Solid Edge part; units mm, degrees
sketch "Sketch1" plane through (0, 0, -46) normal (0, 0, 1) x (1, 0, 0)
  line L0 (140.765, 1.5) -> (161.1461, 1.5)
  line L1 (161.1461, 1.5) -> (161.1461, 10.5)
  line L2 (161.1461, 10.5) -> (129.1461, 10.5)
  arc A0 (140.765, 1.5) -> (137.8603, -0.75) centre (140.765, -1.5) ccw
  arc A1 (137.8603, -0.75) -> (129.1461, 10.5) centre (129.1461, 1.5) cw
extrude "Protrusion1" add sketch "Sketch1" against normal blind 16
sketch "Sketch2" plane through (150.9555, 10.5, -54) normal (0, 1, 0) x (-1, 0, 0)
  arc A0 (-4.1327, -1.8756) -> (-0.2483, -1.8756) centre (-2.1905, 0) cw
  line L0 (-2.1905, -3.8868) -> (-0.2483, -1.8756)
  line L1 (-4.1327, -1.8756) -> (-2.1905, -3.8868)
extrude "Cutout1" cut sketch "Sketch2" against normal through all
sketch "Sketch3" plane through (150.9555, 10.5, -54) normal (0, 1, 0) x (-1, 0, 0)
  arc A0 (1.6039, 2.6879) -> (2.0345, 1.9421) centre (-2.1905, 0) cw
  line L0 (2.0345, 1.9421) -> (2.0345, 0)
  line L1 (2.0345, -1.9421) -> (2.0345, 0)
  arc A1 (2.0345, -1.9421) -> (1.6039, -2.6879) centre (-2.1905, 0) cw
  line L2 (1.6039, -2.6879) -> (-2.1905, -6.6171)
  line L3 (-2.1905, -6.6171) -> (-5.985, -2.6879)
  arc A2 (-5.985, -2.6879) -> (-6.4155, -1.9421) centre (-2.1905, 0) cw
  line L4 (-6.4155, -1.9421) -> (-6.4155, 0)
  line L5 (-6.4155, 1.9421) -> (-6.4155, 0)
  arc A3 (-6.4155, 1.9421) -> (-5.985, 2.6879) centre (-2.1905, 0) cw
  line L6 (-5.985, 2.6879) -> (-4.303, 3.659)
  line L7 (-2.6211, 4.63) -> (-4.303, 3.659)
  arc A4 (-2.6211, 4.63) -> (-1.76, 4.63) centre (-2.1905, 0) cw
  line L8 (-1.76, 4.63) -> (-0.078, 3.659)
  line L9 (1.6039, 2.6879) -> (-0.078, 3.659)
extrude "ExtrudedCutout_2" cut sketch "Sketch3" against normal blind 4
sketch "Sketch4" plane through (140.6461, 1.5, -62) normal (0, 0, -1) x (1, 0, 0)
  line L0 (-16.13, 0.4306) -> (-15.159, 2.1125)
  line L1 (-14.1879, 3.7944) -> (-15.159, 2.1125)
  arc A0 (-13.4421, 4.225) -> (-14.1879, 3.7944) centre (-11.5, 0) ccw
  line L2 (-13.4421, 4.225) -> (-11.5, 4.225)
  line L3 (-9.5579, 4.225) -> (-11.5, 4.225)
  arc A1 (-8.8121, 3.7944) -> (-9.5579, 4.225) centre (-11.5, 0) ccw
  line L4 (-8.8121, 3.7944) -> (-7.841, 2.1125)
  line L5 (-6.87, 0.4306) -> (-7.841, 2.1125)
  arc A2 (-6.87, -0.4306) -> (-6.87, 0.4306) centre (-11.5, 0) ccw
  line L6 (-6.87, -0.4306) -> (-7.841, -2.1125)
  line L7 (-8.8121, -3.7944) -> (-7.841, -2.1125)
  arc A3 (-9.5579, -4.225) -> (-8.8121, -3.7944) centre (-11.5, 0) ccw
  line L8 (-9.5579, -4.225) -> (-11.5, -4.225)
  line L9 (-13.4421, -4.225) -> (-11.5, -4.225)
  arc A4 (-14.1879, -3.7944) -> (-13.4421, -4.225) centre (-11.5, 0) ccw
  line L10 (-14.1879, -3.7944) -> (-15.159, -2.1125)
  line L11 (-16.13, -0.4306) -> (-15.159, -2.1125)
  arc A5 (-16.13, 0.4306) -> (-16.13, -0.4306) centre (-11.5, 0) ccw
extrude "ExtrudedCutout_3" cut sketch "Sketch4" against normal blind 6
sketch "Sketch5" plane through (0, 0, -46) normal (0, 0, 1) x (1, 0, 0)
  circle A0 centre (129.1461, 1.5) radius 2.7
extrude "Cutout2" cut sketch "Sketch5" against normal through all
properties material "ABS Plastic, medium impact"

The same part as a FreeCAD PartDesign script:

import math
import FreeCAD as App
import Part
import Sketcher
Q = App.Units.Quantity

doc = App.newDocument("Part")
body = doc.addObject("PartDesign::Body", "Body")

sketch1 = body.newObject("Sketcher::SketchObject", "Sketch")
sketch1.AttachmentSupport = (doc.getObject("XY_Plane"), [""])
sketch1.MapMode = "FlatFace"
sketch1.AttachmentOffset = App.Placement(App.Vector(0, 0, -46), App.Rotation())
sketch1.addGeometry(Part.ArcOfCircle(Part.Circle(App.Vector(140.765, -1.5, 0), App.Vector(0, 0, 1), 3), math.radians(90), math.radians(165.522309)), False)
sketch1.addGeometry(Part.LineSegment(App.Vector(140.765, 1.5, 0), App.Vector(161.1461, 1.5, 0)), False)
sketch1.addGeometry(Part.LineSegment(App.Vector(161.1461, 1.5, 0), App.Vector(161.1461, 10.5, 0)), False)
sketch1.addGeometry(Part.LineSegment(App.Vector(161.1461, 10.5, 0), App.Vector(129.1461, 10.5, 0)), False)
sketch1.addGeometry(Part.ArcOfCircle(Part.Circle(App.Vector(129.1461, 1.5, 0), App.Vector(0, 0, 1), 8.999988), math.radians(90), math.radians(345.522468)), False)
sketch1.addConstraint(Sketcher.Constraint("Tangent", 0, 1, 1, 1))
sketch1.addConstraint(Sketcher.Constraint("Coincident", 1, 2, 2, 1))
sketch1.addConstraint(Sketcher.Constraint("Coincident", 2, 2, 3, 1))
sketch1.addConstraint(Sketcher.Constraint("Tangent", 3, 2, 4, 1))
sketch1.addConstraint(Sketcher.Constraint("Tangent", 4, 2, 0, 2))
sketch1.addConstraint(Sketcher.Constraint("Horizontal", 1))
sketch1.addConstraint(Sketcher.Constraint("Vertical", 2))
sketch1.addConstraint(Sketcher.Constraint("Horizontal", 3))
sketch1.addConstraint(Sketcher.Constraint("Horizontal", 4, 3, 0, 1))
sketch1.addConstraint(Sketcher.Constraint("Radius", 0, 3.0))
sketch1.addConstraint(Sketcher.Constraint("Radius", 4, 9.0))
sketch1.addConstraint(Sketcher.Constraint("DistanceX", 3, 2, 3, 1, 32.0))
sketch1.addConstraint(Sketcher.Constraint("DistanceY", 0, 3, -1, 1, 1.5))
sketch1.addConstraint(Sketcher.Constraint("DistanceX", -1, 1, 0, 3, 140.765))
pad1 = body.newObject("PartDesign::Pad", "Pad")
pad1.Profile = sketch1
pad1.Length = 16
pad1.Reversed = True

sketch2 = body.newObject("Sketcher::SketchObject", "Sketch001")
sketch2.AttachmentSupport = (doc.getObject("XZ_Plane"), [""])
sketch2.MapMode = "FlatFace"
sketch2.AttachmentOffset = App.Placement(App.Vector(0, 0, -10.5), App.Rotation())
sketch2.addGeometry(Part.ArcOfCircle(Part.Circle(App.Vector(153.146, -54, 0), App.Vector(0, 0, 1), 2.700003), math.radians(-44.000599), math.radians(224.000599)), False)
sketch2.addGeometry(Part.LineSegment(App.Vector(155.0882, -55.8756, 0), App.Vector(153.146, -57.8868, 0)), False)
sketch2.addGeometry(Part.LineSegment(App.Vector(153.146, -57.8868, 0), App.Vector(151.2038, -55.8756, 0)), False)
sketch2.addConstraint(Sketcher.Constraint("Tangent", 0, 1, 1, 1))
sketch2.addConstraint(Sketcher.Constraint("Coincident", 1, 2, 2, 1))
sketch2.addConstraint(Sketcher.Constraint("Tangent", 2, 2, 0, 2))
sketch2.addConstraint(Sketcher.Constraint("Horizontal", 0, 1, 2, 2))
sketch2.addConstraint(Sketcher.Constraint("Radius", 0, 2.7))
sketch2.addConstraint(Sketcher.Constraint("Angle", 1, Q("-134 deg")))
sketch2.addConstraint(Sketcher.Constraint("DistanceY", 0, 3, -1, 1, 54.0))
sketch2.addConstraint(Sketcher.Constraint("DistanceX", -1, 1, 0, 3, 153.146))
pocket1 = body.newObject("PartDesign::Pocket", "Pocket")
pocket1.Profile = sketch2
pocket1.Type = "ThroughAll"
pocket1.Reversed = True

sketch3 = body.newObject("Sketcher::SketchObject", "Sketch002")
sketch3.AttachmentSupport = (doc.getObject("XZ_Plane"), [""])
sketch3.MapMode = "FlatFace"
sketch3.AttachmentOffset = App.Placement(App.Vector(0, 0, -10.5), App.Rotation())
sketch3.addGeometry(Part.ArcOfCircle(Part.Circle(App.Vector(153.147051, -54.000674, 0), App.Vector(0, 0, 1), 4.651223), math.radians(144.687488), math.radians(155.311109)), False)
sketch3.addGeometry(Part.LineSegment(App.Vector(149.3516, -51.3121, 0), App.Vector(151.0335, -50.341, 0)), False)
sketch3.addGeometry(Part.LineSegment(App.Vector(151.0335, -50.341, 0), App.Vector(152.7155, -49.37, 0)), False)
sketch3.addGeometry(Part.ArcOfCircle(Part.Circle(App.Vector(153.14605, -53.998923, 0), App.Vector(0, 0, 1), 4.648903), math.radians(84.686037), math.radians(95.313963)), False)
sketch3.addGeometry(Part.LineSegment(App.Vector(153.5766, -49.37, 0), App.Vector(155.2585, -50.341, 0)), False)
sketch3.addGeometry(Part.LineSegment(App.Vector(155.2585, -50.341, 0), App.Vector(156.9405, -51.3121, 0)), False)
sketch3.addGeometry(Part.ArcOfCircle(Part.Circle(App.Vector(153.138651, -54.0038, 0), App.Vector(0, 0, 1), 4.658252), math.radians(24.691475), math.radians(35.298403)), False)
sketch3.addGeometry(Part.LineSegment(App.Vector(157.371, -52.0579, 0), App.Vector(157.371, -55.9421, 0)), False)
sketch3.addGeometry(Part.ArcOfCircle(Part.Circle(App.Vector(153.152941, -54.004449, 0), App.Vector(0, 0, 1), 4.641822), math.radians(-35.317229), math.radians(-24.672649)), False)
sketch3.addGeometry(Part.LineSegment(App.Vector(156.9405, -56.6879, 0), App.Vector(153.146, -60.6171, 0)), False)
sketch3.addGeometry(Part.LineSegment(App.Vector(153.146, -60.6171, 0), App.Vector(149.3516, -56.6879, 0)), False)
sketch3.addGeometry(Part.ArcOfCircle(Part.Circle(App.Vector(153.144892, -54.000573, 0), App.Vector(0, 0, 1), 4.64874), math.radians(-155.313954), math.radians(-144.684643)), False)
sketch3.addGeometry(Part.LineSegment(App.Vector(148.921, -55.9421, 0), App.Vector(148.921, -52.0579, 0)), False)
sketch3.addConstraint(Sketcher.Constraint("Coincident", 0, 1, 1, 1))
sketch3.addConstraint(Sketcher.Constraint("Coincident", 1, 2, 2, 1))
sketch3.addConstraint(Sketcher.Constraint("Coincident", 2, 2, 3, 2))
sketch3.addConstraint(Sketcher.Constraint("Coincident", 3, 1, 4, 1))
sketch3.addConstraint(Sketcher.Constraint("Coincident", 4, 2, 5, 1))
sketch3.addConstraint(Sketcher.Constraint("Coincident", 5, 2, 6, 2))
sketch3.addConstraint(Sketcher.Constraint("Coincident", 6, 1, 7, 1))
sketch3.addConstraint(Sketcher.Constraint("Coincident", 7, 2, 8, 2))
sketch3.addConstraint(Sketcher.Constraint("Coincident", 8, 1, 9, 1))
sketch3.addConstraint(Sketcher.Constraint("Coincident", 9, 2, 10, 1))
sketch3.addConstraint(Sketcher.Constraint("Coincident", 10, 2, 11, 2))
sketch3.addConstraint(Sketcher.Constraint("Coincident", 11, 1, 12, 1))
sketch3.addConstraint(Sketcher.Constraint("Coincident", 12, 2, 0, 2))
sketch3.addConstraint(Sketcher.Constraint("Vertical", 7))
sketch3.addConstraint(Sketcher.Constraint("Vertical", 12))
sketch3.addConstraint(Sketcher.Constraint("Equal", 3, 11))
sketch3.addConstraint(Sketcher.Constraint("Parallel", 1, 2))
sketch3.addConstraint(Sketcher.Constraint("Parallel", 4, 5))
sketch3.addConstraint(Sketcher.Constraint("Horizontal", 0, 3, 11, 3))
sketch3.addConstraint(Sketcher.Constraint("Horizontal", 2, 2, 3, 1))
sketch3.addConstraint(Sketcher.Constraint("Horizontal", 1, 2, 4, 2))
sketch3.addConstraint(Sketcher.Constraint("Horizontal", 0, 1, 5, 2))
sketch3.addConstraint(Sketcher.Constraint("Horizontal", 8, 1, 10, 2))
sketch3.addConstraint(Sketcher.Constraint("Horizontal", 7, 2, 11, 1))
sketch3.addConstraint(Sketcher.Constraint("Horizontal", 6, 1, 12, 2))
sketch3.addConstraint(Sketcher.Constraint("Vertical", 5, 2, 8, 1))
sketch3.addConstraint(Sketcher.Constraint("Vertical", 3, 3, 9, 2))
sketch3.addConstraint(Sketcher.Constraint("Vertical", 0, 1, 10, 2))
sketch3.addConstraint(Sketcher.Constraint("Equal", 1, 2))
sketch3.addConstraint(Sketcher.Constraint("Equal", 2, 4))
sketch3.addConstraint(Sketcher.Constraint("Angle", 4, Q("-29.9988 deg")))
sketch3.addConstraint(Sketcher.Constraint("Angle", 9, Q("-134.0009 deg")))
sketch3.addConstraint(Sketcher.Constraint("Radius", 3, 4.649))
sketch3.addConstraint(Sketcher.Constraint("Radius", 0, 4.6512))
sketch3.addConstraint(Sketcher.Constraint("Radius", 6, 4.6583))
sketch3.addConstraint(Sketcher.Constraint("Radius", 8, 4.6418))
sketch3.addConstraint(Sketcher.Constraint("DistanceY", 2, 2, -1, 1, 49.37))
sketch3.addConstraint(Sketcher.Constraint("DistanceY", 7, 2, 5, 2, 4.63))
sketch3.addConstraint(Sketcher.Constraint("DistanceY", 8, 1, 6, 1, 4.63))
sketch3.addConstraint(Sketcher.Constraint("Distance", 1, 1.942))
sketch3.addConstraint(Sketcher.Constraint("DistanceY", 7, 2, 7, 1, 3.8842))
sketch3.addConstraint(Sketcher.Constraint("DistanceX", -1, 1, 0, 3, 153.147))
sketch3.addConstraint(Sketcher.Constraint("DistanceX", -1, 1, 3, 3, 153.146))
sketch3.addConstraint(Sketcher.Constraint("DistanceX", -1, 1, 8, 3, 153.153))
pocket2 = body.newObject("PartDesign::Pocket", "Pocket001")
pocket2.Profile = sketch3
pocket2.Length = 4
pocket2.Reversed = True

sketch4 = body.newObject("Sketcher::SketchObject", "Sketch003")
sketch4.AttachmentSupport = (doc.getObject("XY_Plane"), [""])
sketch4.MapMode = "FlatFace"
sketch4.AttachmentOffset = App.Placement(App.Vector(0, 0, -62), App.Rotation())
sketch4.addGeometry(Part.LineSegment(App.Vector(125.4871, -0.6125, 0), App.Vector(124.5161, 1.0694, 0)), False)
sketch4.addGeometry(Part.ArcOfCircle(Part.Circle(App.Vector(129.1461, 1.5, 0), App.Vector(0, 0, 1), 4.64998), math.radians(174.686653), math.radians(185.313347)), False)
sketch4.addGeometry(Part.LineSegment(App.Vector(124.5161, 1.9306, 0), App.Vector(125.4871, 3.6125, 0)), False)
sketch4.addGeometry(Part.LineSegment(App.Vector(125.4871, 3.6125, 0), App.Vector(126.4582, 5.2944, 0)), False)
sketch4.addGeometry(Part.ArcOfCircle(Part.Circle(App.Vector(129.146774, 1.498949, 0), App.Vector(0, 0, 1), 4.651223), math.radians(114.688891), math.radians(125.312512)), False)
sketch4.addGeometry(Part.LineSegment(App.Vector(127.204, 5.725, 0), App.Vector(131.0882, 5.725, 0)), False)
sketch4.addGeometry(Part.ArcOfCircle(Part.Circle(App.Vector(129.146673, 1.501108, 0), App.Vector(0, 0, 1), 4.64874), math.radians(54.684643), math.radians(65.313954)), False)
sketch4.addGeometry(Part.LineSegment(App.Vector(131.834, 5.2944, 0), App.Vector(132.8051, 3.6125, 0)), False)
sketch4.addGeometry(Part.LineSegment(App.Vector(132.8051, 3.6125, 0), App.Vector(133.7761, 1.9306, 0)), False)
sketch4.addGeometry(Part.ArcOfCircle(Part.Circle(App.Vector(129.1461, 1.5, 0), App.Vector(0, 0, 1), 4.64998), math.radians(-5.313347), math.radians(5.313347)), False)
sketch4.addGeometry(Part.LineSegment(App.Vector(133.7761, 1.0694, 0), App.Vector(132.8051, -0.6125, 0)), False)
sketch4.addGeometry(Part.LineSegment(App.Vector(132.8051, -0.6125, 0), App.Vector(131.834, -2.2944, 0)), False)
sketch4.addGeometry(Part.ArcOfCircle(Part.Circle(App.Vector(129.145426, 1.501051, 0), App.Vector(0, 0, 1), 4.651223), math.radians(-65.311109), math.radians(-54.687488)), False)
sketch4.addGeometry(Part.LineSegment(App.Vector(131.0882, -2.725, 0), App.Vector(127.204, -2.725, 0)), False)
sketch4.addGeometry(Part.ArcOfCircle(Part.Circle(App.Vector(129.145527, 1.498892, 0), App.Vector(0, 0, 1), 4.64874), math.radians(-125.315357), math.radians(-114.686046)), False)
sketch4.addGeometry(Part.LineSegment(App.Vector(126.4582, -2.2944, 0), App.Vector(125.4871, -0.6125, 0)), False)
sketch4.addConstraint(Sketcher.Constraint("Coincident", 0, 2, 1, 2))
sketch4.addConstraint(Sketcher.Constraint("Coincident", 1, 1, 2, 1))
sketch4.addConstraint(Sketcher.Constraint("Coincident", 2, 2, 3, 1))
sketch4.addConstraint(Sketcher.Constraint("Coincident", 3, 2, 4, 2))
sketch4.addConstraint(Sketcher.Constraint("Coincident", 4, 1, 5, 1))
sketch4.addConstraint(Sketcher.Constraint("Coincident", 5, 2, 6, 2))
sketch4.addConstraint(Sketcher.Constraint("Coincident", 6, 1, 7, 1))
sketch4.addConstraint(Sketcher.Constraint("Coincident", 7, 2, 8, 1))
sketch4.addConstraint(Sketcher.Constraint("Coincident", 8, 2, 9, 2))
sketch4.addConstraint(Sketcher.Constraint("Coincident", 9, 1, 10, 1))
sketch4.addConstraint(Sketcher.Constraint("Coincident", 10, 2, 11, 1))
sketch4.addConstraint(Sketcher.Constraint("Coincident", 11, 2, 12, 2))
sketch4.addConstraint(Sketcher.Constraint("Coincident", 12, 1, 13, 1))
sketch4.addConstraint(Sketcher.Constraint("Coincident", 13, 2, 14, 2))
sketch4.addConstraint(Sketcher.Constraint("Coincident", 14, 1, 15, 1))
sketch4.addConstraint(Sketcher.Constraint("Coincident", 15, 2, 0, 1))
sketch4.addConstraint(Sketcher.Constraint("Horizontal", 5))
sketch4.addConstraint(Sketcher.Constraint("Horizontal", 13))
sketch4.addConstraint(Sketcher.Constraint("Coincident", 9, 3, 1, 3))
sketch4.addConstraint(Sketcher.Constraint("Equal", 1, 9))
sketch4.addConstraint(Sketcher.Constraint("Equal", 4, 12))
sketch4.addConstraint(Sketcher.Constraint("Equal", 6, 14))
sketch4.addConstraint(Sketcher.Constraint("Parallel", 2, 3))
sketch4.addConstraint(Sketcher.Constraint("Parallel", 0, 7))
sketch4.addConstraint(Sketcher.Constraint("Parallel", 7, 8))
sketch4.addConstraint(Sketcher.Constraint("Parallel", 3, 10))
sketch4.addConstraint(Sketcher.Constraint("Parallel", 10, 11))
sketch4.addConstraint(Sketcher.Constraint("Parallel", 8, 15))
sketch4.addConstraint(Sketcher.Constraint("Horizontal", 6, 3, 12, 3))
sketch4.addConstraint(Sketcher.Constraint("Horizontal", 4, 3, 14, 3))
sketch4.addConstraint(Sketcher.Constraint("Horizontal", 3, 2, 6, 1))
sketch4.addConstraint(Sketcher.Constraint("Horizontal", 2, 2, 7, 2))
sketch4.addConstraint(Sketcher.Constraint("Horizontal", 1, 1, 8, 2))
sketch4.addConstraint(Sketcher.Constraint("Horizontal", 0, 2, 9, 1))
sketch4.addConstraint(Sketcher.Constraint("Horizontal", 11, 2, 14, 1))
sketch4.addConstraint(Sketcher.Constraint("Horizontal", 10, 2, 15, 2))
sketch4.addConstraint(Sketcher.Constraint("Vertical", 4, 3, 6, 3))
sketch4.addConstraint(Sketcher.Constraint("Vertical", 12, 3, 14, 3))
sketch4.addConstraint(Sketcher.Constraint("Vertical", 0, 2, 1, 1))
sketch4.addConstraint(Sketcher.Constraint("Vertical", 7, 2, 10, 2))
sketch4.addConstraint(Sketcher.Constraint("Vertical", 6, 1, 11, 2))
sketch4.addConstraint(Sketcher.Constraint("Vertical", 5, 2, 12, 1))
sketch4.addConstraint(Sketcher.Constraint("Vertical", 4, 1, 13, 2))
sketch4.addConstraint(Sketcher.Constraint("Vertical", 3, 2, 14, 1))
sketch4.addConstraint(Sketcher.Constraint("Equal", 2, 3))
sketch4.addConstraint(Sketcher.Constraint("Angle", 0, Q("119.9988 deg")))
sketch4.addConstraint(Sketcher.Constraint("Radius", 1, 4.65))
sketch4.addConstraint(Sketcher.Constraint("DistanceY", -1, 1, 1, 3, 1.5))
sketch4.addConstraint(Sketcher.Constraint("Radius", 4, 4.6512))
sketch4.addConstraint(Sketcher.Constraint("Radius", 6, 4.6487))
sketch4.addConstraint(Sketcher.Constraint("DistanceX", 0, 2, 1, 3, 4.63))
sketch4.addConstraint(Sketcher.Constraint("DistanceX", 3, 2, 5, 2, 4.63))
sketch4.addConstraint(Sketcher.Constraint("DistanceX", -1, 1, 1, 3, 129.146))
pocket3 = body.newObject("PartDesign::Pocket", "Pocket002")
pocket3.Profile = sketch4
pocket3.Length = 6
pocket3.Reversed = True

sketch5 = body.newObject("Sketcher::SketchObject", "Sketch004")
sketch5.AttachmentSupport = (doc.getObject("XY_Plane"), [""])
sketch5.MapMode = "FlatFace"
sketch5.AttachmentOffset = App.Placement(App.Vector(0, 0, -46), App.Rotation())
sketch5.addGeometry(Part.Circle(App.Vector(129.1461, 1.5, 0), App.Vector(0, 0, 1), 2.7), False)
sketch5.addConstraint(Sketcher.Constraint("Diameter", 0, 5.4))
sketch5.addConstraint(Sketcher.Constraint("DistanceY", -1, 1, 0, 3, 1.5))
sketch5.addConstraint(Sketcher.Constraint("DistanceX", -1, 1, 0, 3, 129.146))
pocket4 = body.newObject("PartDesign::Pocket", "Pocket003")
pocket4.Profile = sketch5
pocket4.Type = "ThroughAll"

doc.recompute()
